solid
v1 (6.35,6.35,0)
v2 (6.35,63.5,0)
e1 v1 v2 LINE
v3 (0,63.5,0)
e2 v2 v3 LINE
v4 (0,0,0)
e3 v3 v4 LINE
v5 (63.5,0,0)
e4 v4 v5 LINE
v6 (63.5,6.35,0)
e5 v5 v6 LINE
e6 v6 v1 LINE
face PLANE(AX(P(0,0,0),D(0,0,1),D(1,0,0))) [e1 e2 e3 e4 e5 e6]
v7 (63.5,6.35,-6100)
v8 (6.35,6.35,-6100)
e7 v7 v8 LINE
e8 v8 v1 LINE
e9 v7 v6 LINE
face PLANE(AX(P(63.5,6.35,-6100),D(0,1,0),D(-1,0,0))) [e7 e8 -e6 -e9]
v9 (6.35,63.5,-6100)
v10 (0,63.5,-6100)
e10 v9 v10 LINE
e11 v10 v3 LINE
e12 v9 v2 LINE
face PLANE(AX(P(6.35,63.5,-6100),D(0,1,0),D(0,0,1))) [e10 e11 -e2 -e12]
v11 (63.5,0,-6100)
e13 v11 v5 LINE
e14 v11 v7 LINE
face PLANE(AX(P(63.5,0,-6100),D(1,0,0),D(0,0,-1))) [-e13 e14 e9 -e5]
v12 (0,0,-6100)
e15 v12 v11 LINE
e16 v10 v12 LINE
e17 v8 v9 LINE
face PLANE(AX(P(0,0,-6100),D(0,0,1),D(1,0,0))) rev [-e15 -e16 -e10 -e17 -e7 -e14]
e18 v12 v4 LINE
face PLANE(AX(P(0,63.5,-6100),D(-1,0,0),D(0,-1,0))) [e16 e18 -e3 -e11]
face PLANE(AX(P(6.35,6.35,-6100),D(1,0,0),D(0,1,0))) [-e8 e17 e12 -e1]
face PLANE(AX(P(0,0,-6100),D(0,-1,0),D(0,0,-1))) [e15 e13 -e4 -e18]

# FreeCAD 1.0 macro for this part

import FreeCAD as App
import Part
import Sketcher

V = App.Vector
Q = App.Units.Quantity


def add_polygon(sketch, points):
    """Adds a closed chain of lines whose ends are joined by coincident constraints."""
    first, n = sketch.GeometryCount, len(points)
    for a, b in zip(points, points[1:] + points[:1]):
        sketch.addGeometry(Part.LineSegment(App.Vector(*a, 0), App.Vector(*b, 0)), False)
    for i in range(n):
        sketch.addConstraint(Sketcher.Constraint("Coincident", first + i, 2, first + (i + 1) % n, 1))

doc = App.newDocument("Part")
body = doc.addObject("PartDesign::Body", "Body")

sketch1 = body.newObject("Sketcher::SketchObject", "Sketch")
sketch1.AttachmentSupport = (doc.getObject("XY_Plane"), [""])
sketch1.MapMode = "FlatFace"
add_polygon(sketch1, [(0, 64), (0, 0), (64, 0), (64, 6), (6, 6), (6, 64)])
sketch1.addConstraint([
    Sketcher.Constraint("Vertical", 0),
    Sketcher.Constraint("Horizontal", 1),
    Sketcher.Constraint("Vertical", 2),
    Sketcher.Constraint("Horizontal", 3),
    Sketcher.Constraint("Vertical", 4),
    Sketcher.Constraint("Horizontal", 5),
    Sketcher.Constraint("Coincident", 0, 2, -1, 1),
    Sketcher.Constraint("Equal", 1, 0),
    Sketcher.Constraint("Equal", 5, 2),
    Sketcher.Constraint("DistanceX", 1, 1, 1, 2, Q("2.5 in")),
    Sketcher.Constraint("DistanceX", 3, 2, 3, 1, Q("2.25 in")),
])
pad1 = body.newObject("PartDesign::Pad", "Pad")
pad1.Profile = sketch1
pad1.Length = 6100
pad1.Reversed = True

doc.recompute()
